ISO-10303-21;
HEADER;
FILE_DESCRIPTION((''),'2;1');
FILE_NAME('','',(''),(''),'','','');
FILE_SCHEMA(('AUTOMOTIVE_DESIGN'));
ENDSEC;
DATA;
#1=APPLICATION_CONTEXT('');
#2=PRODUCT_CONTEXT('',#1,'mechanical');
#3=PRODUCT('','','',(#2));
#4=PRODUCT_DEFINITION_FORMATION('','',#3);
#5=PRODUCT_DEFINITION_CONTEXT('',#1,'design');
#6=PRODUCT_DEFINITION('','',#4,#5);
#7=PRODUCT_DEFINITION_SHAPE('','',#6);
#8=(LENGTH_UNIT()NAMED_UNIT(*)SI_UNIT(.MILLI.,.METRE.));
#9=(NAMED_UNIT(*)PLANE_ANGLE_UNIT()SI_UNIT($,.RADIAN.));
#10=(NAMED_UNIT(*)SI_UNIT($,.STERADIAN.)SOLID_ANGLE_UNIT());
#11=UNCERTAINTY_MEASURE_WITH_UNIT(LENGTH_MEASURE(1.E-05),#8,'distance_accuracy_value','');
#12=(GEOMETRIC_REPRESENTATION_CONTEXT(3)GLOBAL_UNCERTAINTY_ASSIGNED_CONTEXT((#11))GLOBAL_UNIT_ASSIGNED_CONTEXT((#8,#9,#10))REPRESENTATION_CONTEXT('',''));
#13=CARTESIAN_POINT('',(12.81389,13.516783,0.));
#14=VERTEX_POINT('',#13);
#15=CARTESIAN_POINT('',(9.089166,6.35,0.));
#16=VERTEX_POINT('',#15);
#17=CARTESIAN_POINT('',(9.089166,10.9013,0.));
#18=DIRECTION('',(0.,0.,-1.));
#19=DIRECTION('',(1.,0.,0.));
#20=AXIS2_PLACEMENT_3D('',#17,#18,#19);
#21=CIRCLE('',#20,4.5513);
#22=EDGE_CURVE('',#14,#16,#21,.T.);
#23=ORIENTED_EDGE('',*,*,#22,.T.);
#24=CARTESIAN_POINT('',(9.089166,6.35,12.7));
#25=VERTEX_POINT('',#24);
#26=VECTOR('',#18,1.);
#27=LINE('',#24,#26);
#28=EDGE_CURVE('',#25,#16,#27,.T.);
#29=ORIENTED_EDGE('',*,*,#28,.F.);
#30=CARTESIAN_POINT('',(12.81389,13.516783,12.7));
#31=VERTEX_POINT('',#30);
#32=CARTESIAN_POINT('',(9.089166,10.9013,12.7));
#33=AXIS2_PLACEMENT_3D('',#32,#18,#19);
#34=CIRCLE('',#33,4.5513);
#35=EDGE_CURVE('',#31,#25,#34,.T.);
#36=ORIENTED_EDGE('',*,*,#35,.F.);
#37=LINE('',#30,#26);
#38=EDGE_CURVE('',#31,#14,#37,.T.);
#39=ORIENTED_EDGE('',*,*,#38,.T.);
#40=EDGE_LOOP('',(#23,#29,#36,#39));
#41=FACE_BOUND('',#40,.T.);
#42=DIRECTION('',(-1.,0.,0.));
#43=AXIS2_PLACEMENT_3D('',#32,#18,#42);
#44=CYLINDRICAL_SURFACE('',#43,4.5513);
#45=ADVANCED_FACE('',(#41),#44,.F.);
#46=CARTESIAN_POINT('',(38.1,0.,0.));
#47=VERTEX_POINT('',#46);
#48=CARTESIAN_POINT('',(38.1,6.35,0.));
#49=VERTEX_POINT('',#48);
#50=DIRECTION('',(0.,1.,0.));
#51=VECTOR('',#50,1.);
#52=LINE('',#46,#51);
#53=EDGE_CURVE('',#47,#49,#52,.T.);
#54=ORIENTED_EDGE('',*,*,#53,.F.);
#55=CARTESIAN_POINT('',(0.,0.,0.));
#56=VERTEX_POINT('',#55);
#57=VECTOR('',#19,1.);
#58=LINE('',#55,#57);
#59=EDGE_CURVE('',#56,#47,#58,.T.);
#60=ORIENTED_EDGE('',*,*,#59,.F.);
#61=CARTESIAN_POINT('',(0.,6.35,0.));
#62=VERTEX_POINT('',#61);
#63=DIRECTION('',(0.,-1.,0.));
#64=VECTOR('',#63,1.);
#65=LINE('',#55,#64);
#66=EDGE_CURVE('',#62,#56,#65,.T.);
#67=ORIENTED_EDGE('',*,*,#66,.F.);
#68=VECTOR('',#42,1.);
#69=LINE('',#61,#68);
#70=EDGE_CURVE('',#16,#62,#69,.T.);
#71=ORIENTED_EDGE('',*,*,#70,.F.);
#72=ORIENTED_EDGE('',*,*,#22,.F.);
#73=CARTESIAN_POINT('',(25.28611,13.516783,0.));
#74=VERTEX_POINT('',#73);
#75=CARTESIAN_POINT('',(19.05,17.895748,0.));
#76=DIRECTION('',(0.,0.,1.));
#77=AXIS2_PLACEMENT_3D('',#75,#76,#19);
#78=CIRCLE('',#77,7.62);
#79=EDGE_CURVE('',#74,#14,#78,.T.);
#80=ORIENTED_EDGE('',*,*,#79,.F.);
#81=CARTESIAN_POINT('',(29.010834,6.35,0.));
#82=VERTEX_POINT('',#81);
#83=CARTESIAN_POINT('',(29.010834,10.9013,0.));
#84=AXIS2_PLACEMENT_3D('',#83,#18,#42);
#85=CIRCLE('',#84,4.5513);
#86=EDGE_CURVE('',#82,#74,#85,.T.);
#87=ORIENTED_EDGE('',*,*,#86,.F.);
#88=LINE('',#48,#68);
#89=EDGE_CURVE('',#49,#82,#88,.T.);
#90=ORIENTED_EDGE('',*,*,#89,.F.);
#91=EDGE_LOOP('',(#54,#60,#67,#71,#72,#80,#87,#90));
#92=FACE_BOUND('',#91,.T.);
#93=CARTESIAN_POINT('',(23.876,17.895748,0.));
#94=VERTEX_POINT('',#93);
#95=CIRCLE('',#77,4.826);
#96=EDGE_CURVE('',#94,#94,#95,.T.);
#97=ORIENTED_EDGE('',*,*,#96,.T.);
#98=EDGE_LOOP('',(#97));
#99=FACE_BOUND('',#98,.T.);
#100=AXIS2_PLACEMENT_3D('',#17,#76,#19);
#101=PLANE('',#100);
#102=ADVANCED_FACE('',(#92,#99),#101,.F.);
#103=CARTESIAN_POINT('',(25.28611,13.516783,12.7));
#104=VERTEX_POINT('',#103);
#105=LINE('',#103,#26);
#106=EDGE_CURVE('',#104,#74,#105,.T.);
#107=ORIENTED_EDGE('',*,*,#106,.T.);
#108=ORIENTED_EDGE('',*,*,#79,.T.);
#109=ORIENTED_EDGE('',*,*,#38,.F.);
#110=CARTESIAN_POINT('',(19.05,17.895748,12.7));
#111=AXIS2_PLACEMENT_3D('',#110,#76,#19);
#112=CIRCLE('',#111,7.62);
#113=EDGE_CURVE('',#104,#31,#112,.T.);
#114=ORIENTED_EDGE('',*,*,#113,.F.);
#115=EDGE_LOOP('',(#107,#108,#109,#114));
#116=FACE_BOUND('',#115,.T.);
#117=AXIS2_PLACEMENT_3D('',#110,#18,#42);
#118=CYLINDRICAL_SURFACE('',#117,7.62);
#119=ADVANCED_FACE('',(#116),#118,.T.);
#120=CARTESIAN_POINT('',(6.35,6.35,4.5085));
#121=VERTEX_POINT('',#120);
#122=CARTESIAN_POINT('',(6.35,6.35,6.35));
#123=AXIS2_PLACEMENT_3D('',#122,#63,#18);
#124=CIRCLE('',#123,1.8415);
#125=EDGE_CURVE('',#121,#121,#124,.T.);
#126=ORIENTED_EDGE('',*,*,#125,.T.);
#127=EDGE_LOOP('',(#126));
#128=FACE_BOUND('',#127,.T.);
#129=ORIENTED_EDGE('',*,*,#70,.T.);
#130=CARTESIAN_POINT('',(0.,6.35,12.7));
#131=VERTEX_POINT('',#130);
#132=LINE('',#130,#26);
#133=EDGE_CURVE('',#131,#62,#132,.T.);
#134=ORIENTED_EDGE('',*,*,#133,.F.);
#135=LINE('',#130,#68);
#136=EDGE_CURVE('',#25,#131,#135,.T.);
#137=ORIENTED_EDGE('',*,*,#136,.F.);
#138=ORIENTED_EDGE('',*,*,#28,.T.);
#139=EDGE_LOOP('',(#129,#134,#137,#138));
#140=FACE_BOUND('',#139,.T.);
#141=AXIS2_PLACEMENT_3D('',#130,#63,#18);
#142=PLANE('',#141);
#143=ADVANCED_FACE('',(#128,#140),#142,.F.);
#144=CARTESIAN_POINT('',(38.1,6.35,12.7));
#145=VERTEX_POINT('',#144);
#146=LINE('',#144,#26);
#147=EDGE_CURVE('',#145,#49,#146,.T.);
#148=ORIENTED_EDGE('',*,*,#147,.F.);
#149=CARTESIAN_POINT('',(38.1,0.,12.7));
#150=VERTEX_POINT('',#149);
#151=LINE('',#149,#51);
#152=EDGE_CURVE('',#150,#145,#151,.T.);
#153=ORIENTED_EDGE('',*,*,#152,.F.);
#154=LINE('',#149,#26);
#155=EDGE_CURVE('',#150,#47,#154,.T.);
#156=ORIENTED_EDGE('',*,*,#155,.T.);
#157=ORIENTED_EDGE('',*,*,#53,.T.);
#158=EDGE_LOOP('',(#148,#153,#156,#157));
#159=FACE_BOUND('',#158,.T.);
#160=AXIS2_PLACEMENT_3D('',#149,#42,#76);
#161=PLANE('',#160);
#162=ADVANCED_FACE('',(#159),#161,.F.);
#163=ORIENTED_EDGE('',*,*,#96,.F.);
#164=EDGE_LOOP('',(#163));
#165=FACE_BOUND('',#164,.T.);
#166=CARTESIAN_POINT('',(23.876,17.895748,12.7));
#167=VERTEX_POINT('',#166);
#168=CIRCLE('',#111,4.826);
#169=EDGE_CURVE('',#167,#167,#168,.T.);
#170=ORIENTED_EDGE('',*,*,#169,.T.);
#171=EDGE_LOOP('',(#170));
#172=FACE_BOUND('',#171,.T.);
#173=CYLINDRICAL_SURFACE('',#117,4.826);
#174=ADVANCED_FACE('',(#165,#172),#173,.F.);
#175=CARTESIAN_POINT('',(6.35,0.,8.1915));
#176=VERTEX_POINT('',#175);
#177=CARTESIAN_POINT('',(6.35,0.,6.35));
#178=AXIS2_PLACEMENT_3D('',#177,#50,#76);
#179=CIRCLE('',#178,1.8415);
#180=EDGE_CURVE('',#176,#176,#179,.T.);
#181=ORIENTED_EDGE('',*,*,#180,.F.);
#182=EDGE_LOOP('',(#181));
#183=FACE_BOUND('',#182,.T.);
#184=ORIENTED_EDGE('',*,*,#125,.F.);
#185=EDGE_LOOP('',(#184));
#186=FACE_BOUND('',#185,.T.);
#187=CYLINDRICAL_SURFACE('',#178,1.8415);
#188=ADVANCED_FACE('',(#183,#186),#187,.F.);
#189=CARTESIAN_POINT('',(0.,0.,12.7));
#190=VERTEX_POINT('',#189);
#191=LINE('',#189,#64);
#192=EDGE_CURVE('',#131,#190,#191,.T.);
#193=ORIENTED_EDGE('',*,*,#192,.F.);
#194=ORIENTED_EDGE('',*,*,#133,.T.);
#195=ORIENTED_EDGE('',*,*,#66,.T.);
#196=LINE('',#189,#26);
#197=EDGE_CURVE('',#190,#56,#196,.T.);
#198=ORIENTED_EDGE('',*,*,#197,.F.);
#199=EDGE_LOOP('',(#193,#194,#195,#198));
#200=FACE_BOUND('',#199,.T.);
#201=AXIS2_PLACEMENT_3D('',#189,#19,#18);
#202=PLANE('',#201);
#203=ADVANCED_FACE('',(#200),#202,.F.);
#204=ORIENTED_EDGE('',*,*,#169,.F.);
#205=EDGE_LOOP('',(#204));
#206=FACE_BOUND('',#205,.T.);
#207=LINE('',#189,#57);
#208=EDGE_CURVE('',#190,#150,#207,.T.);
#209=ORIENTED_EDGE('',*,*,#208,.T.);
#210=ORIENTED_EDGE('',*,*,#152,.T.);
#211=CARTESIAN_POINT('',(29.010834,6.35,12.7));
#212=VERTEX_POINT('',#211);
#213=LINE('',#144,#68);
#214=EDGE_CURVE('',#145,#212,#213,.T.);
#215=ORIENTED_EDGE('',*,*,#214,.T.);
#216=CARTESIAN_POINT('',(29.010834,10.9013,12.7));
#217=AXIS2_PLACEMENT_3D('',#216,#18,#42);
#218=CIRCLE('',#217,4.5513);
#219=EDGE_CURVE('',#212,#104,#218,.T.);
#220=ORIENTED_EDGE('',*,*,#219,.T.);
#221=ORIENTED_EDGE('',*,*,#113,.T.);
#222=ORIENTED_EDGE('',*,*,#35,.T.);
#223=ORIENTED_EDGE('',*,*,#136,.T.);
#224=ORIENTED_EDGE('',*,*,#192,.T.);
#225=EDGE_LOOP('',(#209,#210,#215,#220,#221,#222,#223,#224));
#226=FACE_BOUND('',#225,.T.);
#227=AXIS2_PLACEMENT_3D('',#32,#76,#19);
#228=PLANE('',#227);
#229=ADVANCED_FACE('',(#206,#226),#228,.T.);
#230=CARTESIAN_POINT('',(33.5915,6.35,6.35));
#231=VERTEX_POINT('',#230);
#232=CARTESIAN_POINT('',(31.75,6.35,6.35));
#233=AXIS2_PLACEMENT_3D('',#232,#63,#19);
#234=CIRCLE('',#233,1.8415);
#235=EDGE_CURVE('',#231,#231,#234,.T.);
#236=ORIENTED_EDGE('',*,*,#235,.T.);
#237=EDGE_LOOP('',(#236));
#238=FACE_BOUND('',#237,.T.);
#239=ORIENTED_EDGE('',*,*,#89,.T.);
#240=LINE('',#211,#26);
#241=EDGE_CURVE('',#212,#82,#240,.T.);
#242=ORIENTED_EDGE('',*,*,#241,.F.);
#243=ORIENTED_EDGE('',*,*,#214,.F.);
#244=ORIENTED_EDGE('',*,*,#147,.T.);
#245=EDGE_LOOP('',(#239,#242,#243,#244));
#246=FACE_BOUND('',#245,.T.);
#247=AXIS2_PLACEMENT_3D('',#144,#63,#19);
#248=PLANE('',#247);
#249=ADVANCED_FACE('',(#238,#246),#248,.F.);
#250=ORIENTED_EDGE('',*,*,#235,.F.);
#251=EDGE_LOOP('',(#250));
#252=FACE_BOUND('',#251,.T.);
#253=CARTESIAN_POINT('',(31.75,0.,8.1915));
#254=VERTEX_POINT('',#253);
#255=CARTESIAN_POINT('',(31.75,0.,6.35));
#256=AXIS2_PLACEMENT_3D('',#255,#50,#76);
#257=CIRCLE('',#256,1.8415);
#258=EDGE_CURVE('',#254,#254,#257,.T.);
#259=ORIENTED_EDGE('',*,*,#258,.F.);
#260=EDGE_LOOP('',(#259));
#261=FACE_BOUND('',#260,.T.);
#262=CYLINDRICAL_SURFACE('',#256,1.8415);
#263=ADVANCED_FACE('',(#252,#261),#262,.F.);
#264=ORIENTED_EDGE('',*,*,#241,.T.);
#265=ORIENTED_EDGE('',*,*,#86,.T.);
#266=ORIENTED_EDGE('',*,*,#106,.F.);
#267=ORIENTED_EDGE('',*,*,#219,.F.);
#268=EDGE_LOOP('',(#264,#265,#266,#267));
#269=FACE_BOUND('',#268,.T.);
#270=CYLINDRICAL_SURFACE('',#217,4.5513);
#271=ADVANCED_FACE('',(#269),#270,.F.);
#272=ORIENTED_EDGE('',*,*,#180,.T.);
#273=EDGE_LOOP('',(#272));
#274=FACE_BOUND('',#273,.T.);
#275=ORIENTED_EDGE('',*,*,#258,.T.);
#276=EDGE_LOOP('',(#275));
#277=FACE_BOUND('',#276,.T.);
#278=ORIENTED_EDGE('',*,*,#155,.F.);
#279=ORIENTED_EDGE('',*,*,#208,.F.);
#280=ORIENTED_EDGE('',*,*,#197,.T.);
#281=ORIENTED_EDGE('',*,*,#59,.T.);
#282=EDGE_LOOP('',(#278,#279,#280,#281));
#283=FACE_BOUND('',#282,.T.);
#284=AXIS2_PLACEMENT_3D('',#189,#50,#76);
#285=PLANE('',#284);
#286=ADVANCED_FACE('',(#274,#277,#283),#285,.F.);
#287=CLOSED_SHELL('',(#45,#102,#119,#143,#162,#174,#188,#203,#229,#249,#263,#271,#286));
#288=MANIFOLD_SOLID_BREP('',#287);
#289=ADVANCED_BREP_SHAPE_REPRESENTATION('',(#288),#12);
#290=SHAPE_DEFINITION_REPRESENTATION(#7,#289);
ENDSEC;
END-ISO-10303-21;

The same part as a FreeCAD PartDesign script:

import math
import FreeCAD as App
import Part
import Sketcher
from FreeCAD import Vector
Q = App.Units.Quantity

doc = App.newDocument("Part")
body = doc.addObject("PartDesign::Body", "Body")

sketch1 = doc.addObject("Sketcher::SketchObject", "Sketch")
body.addObject(sketch1)
sketch1.AttachmentSupport = (doc.XY_Plane, [""])
sketch1.MapMode = "FlatFace"
sketch1.addGeometry([
    Part.LineSegment(Vector(0, 0, 0), Vector(38.1, 0, 0)),
    Part.LineSegment(Vector(38.1, 0, 0), Vector(38.1, 6.3, 0)),
    Part.LineSegment(Vector(38.1, 6.3, 0), Vector(29, 6.3, 0)),
    Part.ArcOfCircle(Part.Circle(Vector(29, 10.9, 0), Vector(0, 0, 1), 4.6), math.radians(145), math.radians(270)),
    Part.ArcOfCircle(Part.Circle(Vector(19.1, 17.9, 0), Vector(0, 0, 1), 7.6), math.radians(-35), math.radians(215)),
    Part.ArcOfCircle(Part.Circle(Vector(9.1, 10.9, 0), Vector(0, 0, 1), 4.6), math.radians(-90), math.radians(35)),
    Part.LineSegment(Vector(9.1, 6.3, 0), Vector(0, 6.3, 0)),
    Part.LineSegment(Vector(0, 6.3, 0), Vector(0, 0, 0)),
    Part.Circle(Vector(19.1, 17.9, 0), Vector(0, 0, 1), 4.8),
], False)
sketch1.addConstraint([
    Sketcher.Constraint("Coincident", 0, 2, 1, 1),
    Sketcher.Constraint("Coincident", 1, 2, 2, 1),
    Sketcher.Constraint("Tangent", 2, 2, 3, 2),
    Sketcher.Constraint("Tangent", 3, 1, 4, 1),
    Sketcher.Constraint("Tangent", 4, 2, 5, 2),
    Sketcher.Constraint("Tangent", 5, 1, 6, 1),
    Sketcher.Constraint("Coincident", 6, 2, 7, 1),
    Sketcher.Constraint("Coincident", 7, 2, 0, 1),
    Sketcher.Constraint("Horizontal", 0),
    Sketcher.Constraint("Vertical", 1),
    Sketcher.Constraint("Horizontal", 2),
    Sketcher.Constraint("Horizontal", 6),
    Sketcher.Constraint("Vertical", 7),
    Sketcher.Constraint("Coincident", 7, 2, -1, 1),
    Sketcher.Constraint("Coincident", 8, 3, 4, 3),
    Sketcher.Constraint("Equal", 3, 5),
    Sketcher.Constraint("Horizontal", 3, 3, 5, 3),
    Sketcher.Constraint("Equal", 2, 6),
    Sketcher.Constraint("Radius", 4, Q("0.3 in")),
    Sketcher.Constraint("Diameter", 8, Q("0.38 in")),
    Sketcher.Constraint("DistanceX", 0, 1, 0, 2, Q("1.5 in")),
    Sketcher.Constraint("DistanceY", 1, 1, 1, 2, Q("0.25 in")),
    Sketcher.Constraint("Radius", 3, 4.5513),
    Sketcher.Constraint("DistanceX", 2, 2, 2, 1, 9.089166),
])
pad1 = doc.addObject("PartDesign::Pad", "Pad")
body.addObject(pad1)
pad1.Profile = sketch1
pad1.Length = Q("0.5 in")

sketch2 = doc.addObject("Sketcher::SketchObject", "Sketch001")
body.addObject(sketch2)
sketch2.AttachmentSupport = (doc.XZ_Plane, [""])
sketch2.MapMode = "FlatFace"
sketch2.AttachmentOffset = App.Placement(Vector(0, 0, -0.25 * 25.4), App.Rotation())
sketch2.addGeometry([
    Part.Circle(Vector(6.3, 6.3, 0), Vector(0, 0, 1), 1.8),
    Part.Circle(Vector(31.8, 6.3, 0), Vector(0, 0, 1), 1.8),
], False)
sketch2.addConstraint([
    Sketcher.Constraint("Equal", 0, 1),
    Sketcher.Constraint("Horizontal", 0, 3, 1, 3),
    Sketcher.Constraint("Diameter", 0, Q("0.145 in")),
    Sketcher.Constraint("DistanceX", 0, 3, 1, 3, Q("1 in")),
    Sketcher.Constraint("DistanceX", -1, 1, 0, 3, Q("0.25 in")),
    Sketcher.Constraint("DistanceY", -1, 1, 0, 3, Q("0.25 in")),
])
pocket1 = doc.addObject("PartDesign::Pocket", "Pocket")
body.addObject(pocket1)
pocket1.Profile = sketch2
pocket1.Type = "ThroughAll"
pocket1.Midplane = True

doc.recompute()
